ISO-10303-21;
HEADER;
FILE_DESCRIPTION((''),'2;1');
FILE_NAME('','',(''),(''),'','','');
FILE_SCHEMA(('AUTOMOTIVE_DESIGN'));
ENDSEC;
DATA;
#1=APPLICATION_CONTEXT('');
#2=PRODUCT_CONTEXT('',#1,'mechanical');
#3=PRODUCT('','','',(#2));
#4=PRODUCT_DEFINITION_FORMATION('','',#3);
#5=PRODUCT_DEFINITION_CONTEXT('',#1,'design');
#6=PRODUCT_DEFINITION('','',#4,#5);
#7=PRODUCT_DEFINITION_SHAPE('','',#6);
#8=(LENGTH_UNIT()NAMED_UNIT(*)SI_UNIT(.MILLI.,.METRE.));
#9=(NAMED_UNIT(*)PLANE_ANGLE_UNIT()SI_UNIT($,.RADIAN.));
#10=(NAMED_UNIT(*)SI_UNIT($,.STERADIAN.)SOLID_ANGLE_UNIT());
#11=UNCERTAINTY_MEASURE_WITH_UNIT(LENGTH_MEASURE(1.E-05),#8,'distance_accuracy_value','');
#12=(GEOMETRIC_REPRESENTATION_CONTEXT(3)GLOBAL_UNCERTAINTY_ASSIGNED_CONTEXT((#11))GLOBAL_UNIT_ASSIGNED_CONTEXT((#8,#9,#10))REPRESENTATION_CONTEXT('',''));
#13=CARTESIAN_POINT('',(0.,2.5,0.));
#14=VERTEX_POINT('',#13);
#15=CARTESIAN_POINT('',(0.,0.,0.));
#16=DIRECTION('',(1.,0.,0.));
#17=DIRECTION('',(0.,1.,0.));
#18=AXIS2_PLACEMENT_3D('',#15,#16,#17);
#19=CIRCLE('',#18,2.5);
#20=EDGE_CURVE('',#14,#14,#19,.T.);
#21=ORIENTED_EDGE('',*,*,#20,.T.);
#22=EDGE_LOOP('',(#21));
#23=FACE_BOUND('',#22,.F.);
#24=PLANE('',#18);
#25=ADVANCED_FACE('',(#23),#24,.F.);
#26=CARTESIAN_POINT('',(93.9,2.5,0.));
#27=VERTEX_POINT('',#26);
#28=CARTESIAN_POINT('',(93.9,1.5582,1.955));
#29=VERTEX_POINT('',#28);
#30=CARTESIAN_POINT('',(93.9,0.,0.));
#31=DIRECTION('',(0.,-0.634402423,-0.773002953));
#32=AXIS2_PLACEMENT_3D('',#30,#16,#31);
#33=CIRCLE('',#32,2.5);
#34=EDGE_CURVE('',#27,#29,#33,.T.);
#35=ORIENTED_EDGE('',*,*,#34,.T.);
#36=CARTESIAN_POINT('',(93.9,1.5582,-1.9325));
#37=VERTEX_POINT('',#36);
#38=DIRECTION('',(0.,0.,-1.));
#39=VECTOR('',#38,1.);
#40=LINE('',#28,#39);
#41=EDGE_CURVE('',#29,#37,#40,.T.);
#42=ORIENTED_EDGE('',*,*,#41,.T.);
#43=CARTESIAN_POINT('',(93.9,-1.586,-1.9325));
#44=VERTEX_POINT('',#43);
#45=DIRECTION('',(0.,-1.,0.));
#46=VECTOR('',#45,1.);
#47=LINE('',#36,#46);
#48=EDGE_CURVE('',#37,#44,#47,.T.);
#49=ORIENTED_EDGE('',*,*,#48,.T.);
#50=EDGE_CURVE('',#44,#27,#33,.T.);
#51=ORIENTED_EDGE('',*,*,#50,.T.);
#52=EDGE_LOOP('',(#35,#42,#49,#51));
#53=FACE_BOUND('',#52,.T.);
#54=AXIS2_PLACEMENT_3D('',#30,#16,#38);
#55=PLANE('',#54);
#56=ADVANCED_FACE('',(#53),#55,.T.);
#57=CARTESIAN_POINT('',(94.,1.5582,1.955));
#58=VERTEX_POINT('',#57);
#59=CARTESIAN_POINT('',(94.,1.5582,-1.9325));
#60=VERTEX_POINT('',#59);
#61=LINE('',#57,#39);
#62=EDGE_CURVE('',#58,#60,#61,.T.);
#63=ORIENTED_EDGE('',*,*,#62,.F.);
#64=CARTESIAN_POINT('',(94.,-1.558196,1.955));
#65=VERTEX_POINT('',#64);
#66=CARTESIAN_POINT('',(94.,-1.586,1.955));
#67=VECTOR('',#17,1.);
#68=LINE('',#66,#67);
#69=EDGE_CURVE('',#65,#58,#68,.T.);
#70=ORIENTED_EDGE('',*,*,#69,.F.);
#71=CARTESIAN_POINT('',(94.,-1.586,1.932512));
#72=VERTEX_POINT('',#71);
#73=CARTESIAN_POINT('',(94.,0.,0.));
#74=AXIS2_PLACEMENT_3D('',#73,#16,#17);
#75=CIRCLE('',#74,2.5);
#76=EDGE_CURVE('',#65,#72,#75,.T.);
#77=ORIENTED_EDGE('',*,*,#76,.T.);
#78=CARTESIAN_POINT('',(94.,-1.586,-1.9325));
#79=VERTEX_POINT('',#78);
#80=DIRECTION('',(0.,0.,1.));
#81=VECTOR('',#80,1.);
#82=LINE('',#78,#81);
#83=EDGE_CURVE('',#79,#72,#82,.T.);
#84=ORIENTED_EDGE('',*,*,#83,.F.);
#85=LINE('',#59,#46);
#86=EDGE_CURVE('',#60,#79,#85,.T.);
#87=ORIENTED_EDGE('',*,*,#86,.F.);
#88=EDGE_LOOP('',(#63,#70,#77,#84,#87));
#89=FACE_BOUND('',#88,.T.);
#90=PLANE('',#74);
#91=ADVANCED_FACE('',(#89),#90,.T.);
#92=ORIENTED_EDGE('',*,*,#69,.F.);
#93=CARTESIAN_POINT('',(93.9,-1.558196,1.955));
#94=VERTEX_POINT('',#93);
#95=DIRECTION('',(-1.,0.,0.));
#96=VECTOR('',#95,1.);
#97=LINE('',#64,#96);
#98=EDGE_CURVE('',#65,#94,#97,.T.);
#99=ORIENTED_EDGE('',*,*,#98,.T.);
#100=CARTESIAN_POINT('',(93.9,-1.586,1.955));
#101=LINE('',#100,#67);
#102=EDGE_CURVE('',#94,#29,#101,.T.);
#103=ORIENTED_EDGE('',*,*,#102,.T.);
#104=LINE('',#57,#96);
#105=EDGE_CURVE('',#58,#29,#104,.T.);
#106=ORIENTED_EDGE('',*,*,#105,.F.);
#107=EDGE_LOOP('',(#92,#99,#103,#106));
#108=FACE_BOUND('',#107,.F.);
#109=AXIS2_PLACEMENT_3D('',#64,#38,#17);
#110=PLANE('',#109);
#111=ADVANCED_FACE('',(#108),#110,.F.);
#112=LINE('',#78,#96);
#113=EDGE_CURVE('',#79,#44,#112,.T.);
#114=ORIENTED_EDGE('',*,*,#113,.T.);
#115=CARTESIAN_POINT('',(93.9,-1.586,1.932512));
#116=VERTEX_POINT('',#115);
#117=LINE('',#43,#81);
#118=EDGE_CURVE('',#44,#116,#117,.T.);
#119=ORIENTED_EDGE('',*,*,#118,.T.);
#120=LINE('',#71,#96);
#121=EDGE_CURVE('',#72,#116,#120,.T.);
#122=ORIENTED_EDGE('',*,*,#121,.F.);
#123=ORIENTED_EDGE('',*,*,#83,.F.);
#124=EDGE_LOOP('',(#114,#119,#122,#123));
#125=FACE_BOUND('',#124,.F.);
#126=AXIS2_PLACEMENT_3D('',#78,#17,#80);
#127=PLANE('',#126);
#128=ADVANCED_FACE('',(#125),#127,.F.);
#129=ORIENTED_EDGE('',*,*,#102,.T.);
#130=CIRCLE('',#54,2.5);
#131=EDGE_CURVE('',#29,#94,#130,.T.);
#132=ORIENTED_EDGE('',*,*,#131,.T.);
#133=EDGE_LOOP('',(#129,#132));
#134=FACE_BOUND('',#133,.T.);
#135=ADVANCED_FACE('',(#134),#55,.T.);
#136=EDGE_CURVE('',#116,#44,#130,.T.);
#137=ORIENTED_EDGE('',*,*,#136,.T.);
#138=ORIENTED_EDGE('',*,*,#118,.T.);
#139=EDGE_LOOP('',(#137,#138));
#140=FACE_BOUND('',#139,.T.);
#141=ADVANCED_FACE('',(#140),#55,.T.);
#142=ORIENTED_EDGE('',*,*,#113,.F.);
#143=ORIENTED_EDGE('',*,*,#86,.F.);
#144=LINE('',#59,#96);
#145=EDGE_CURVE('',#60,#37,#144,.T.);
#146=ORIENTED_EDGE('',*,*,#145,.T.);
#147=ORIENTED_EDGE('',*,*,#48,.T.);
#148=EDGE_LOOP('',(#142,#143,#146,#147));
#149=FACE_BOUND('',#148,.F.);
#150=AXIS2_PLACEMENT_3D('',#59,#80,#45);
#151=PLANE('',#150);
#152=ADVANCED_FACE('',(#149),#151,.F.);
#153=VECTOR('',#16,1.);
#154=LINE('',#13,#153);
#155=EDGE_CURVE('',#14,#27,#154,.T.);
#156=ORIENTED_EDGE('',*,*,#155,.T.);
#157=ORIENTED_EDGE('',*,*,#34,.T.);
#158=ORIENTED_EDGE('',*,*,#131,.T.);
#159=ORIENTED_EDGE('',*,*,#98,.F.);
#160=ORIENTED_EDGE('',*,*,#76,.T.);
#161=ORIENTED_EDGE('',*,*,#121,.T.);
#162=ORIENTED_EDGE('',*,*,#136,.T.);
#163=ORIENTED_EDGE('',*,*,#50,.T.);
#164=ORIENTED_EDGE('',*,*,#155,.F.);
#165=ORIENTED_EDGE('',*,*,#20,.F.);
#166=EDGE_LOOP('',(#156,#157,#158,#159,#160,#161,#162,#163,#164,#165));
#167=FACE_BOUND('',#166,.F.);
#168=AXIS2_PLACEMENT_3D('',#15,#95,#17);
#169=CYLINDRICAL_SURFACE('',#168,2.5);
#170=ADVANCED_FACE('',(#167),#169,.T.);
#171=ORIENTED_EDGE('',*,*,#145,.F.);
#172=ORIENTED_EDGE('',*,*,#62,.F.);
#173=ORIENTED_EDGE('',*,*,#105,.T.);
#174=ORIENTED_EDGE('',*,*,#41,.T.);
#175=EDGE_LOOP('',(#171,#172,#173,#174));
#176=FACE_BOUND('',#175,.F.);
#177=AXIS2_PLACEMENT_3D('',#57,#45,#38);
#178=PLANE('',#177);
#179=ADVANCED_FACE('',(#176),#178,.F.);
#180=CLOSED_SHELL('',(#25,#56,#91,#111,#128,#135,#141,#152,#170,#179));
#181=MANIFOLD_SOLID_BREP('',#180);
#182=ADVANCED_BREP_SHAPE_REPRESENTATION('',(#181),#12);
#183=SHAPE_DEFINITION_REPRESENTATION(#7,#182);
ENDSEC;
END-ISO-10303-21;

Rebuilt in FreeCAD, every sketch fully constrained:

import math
import FreeCAD as App
import Part
import Sketcher

doc = App.newDocument("Part")
params = doc.addObject("Spreadsheet::Sheet", "Params")
for row, (alias, value) in enumerate([
    ("sketch1_diameter", "5 mm"),
    ("pad1_length", "94 mm"),
    ("sketch2_radius", "2.5 mm"),
    ("pocket1_length", "0.1 mm"),
], start=1):
    params.set(f"A{row}", alias)
    params.set(f"B{row}", "=" + value)
    params.setAlias(f"B{row}", alias)

body = doc.addObject("PartDesign::Body", "Body")

# Sketch on YZ plane
sketch1 = body.newObject("Sketcher::SketchObject", "Sketch")
sketch1.AttachmentSupport = (doc.getObject("YZ_Plane"), [""])
sketch1.MapMode = "FlatFace"
sketch1.addGeometry(Part.Circle(App.Vector(0, 0, 0), App.Vector(0, 0, 1), 2.5), False)
sketch1.addConstraint([
    Sketcher.Constraint("Coincident", 0, 3, -1, 1),
    Sketcher.Constraint("Diameter", 0, 5.0),
])
sketch1.setExpression("Constraints[1]", "Params.sketch1_diameter")
pad1 = body.newObject("PartDesign::Pad", "Pad")
pad1.Profile = sketch1
pad1.setExpression("Length", "Params.pad1_length")

# Sketch on YZ plane
sketch2 = body.newObject("Sketcher::SketchObject", "Sketch001")
sketch2.AttachmentSupport = (doc.getObject("YZ_Plane"), [""])
sketch2.MapMode = "FlatFace"
sketch2.AttachmentOffset = App.Placement(App.Vector(0, 0, 94), App.Rotation())
sketch2.addGeometry([
    Part.ArcOfCircle(Part.Circle(App.Vector(0, 0, 0), App.Vector(0, 0, 1), 2.5), math.radians(-129.375677), math.radians(51.44399)),  # 0
    Part.LineSegment(App.Vector(1.5582, 1.955, 0), App.Vector(1.5582, -1.9325, 0)),  # 1
    Part.LineSegment(App.Vector(1.5582, -1.9325, 0), App.Vector(-1.586, -1.9325, 0)),  # 2
    Part.LineSegment(App.Vector(-1.558196, 1.955, 0), App.Vector(1.5582, 1.955, 0)),  # 3
    Part.ArcOfCircle(Part.Circle(App.Vector(0, 0, 0), App.Vector(0, 0, 1), 2.5), math.radians(51.44399), math.radians(128.55594)),  # 4
    Part.ArcOfCircle(Part.Circle(App.Vector(0, 0, 0), App.Vector(0, 0, 1), 2.5), math.radians(129.375498), math.radians(230.624323)),  # 5
    Part.LineSegment(App.Vector(-1.586, 1.932512, 0), App.Vector(-1.586, -1.9325, 0)),  # 6
], False)
sketch2.addConstraint([
    Sketcher.Constraint("Coincident", 0, 2, 1, 1),
    Sketcher.Constraint("Coincident", 1, 2, 2, 1),
    Sketcher.Constraint("Coincident", 2, 2, 0, 1),
    Sketcher.Constraint("Coincident", 3, 1, 4, 2),
    Sketcher.Constraint("Coincident", 4, 1, 3, 2),
    Sketcher.Constraint("Coincident", 5, 1, 6, 1),
    Sketcher.Constraint("Coincident", 6, 2, 5, 2),
    Sketcher.Constraint("Vertical", 1),
    Sketcher.Constraint("Horizontal", 2),
    Sketcher.Constraint("Horizontal", 3),
    Sketcher.Constraint("Vertical", 6),
    Sketcher.Constraint("Coincident", 0, 3, -1, 1),
    Sketcher.Constraint("Coincident", 4, 3, -1, 1),
    Sketcher.Constraint("Coincident", 5, 3, -1, 1),
    Sketcher.Constraint("Coincident", 4, 1, 0, 2),
    Sketcher.Constraint("Coincident", 6, 2, 2, 2),
    Sketcher.Constraint("Radius", 0, 2.5),
    Sketcher.Constraint("DistanceY", 6, 2, 6, 1, 3.865),
    Sketcher.Constraint("DistanceX", 2, 2, 2, 1, 3.1442),
])
sketch2.setExpression("Constraints[16]", "Params.sketch2_radius")
pocket1 = body.newObject("PartDesign::Pocket", "Pocket")
pocket1.Profile = sketch2
pocket1.setExpression("Length", "Params.pocket1_length")

doc.recompute()
